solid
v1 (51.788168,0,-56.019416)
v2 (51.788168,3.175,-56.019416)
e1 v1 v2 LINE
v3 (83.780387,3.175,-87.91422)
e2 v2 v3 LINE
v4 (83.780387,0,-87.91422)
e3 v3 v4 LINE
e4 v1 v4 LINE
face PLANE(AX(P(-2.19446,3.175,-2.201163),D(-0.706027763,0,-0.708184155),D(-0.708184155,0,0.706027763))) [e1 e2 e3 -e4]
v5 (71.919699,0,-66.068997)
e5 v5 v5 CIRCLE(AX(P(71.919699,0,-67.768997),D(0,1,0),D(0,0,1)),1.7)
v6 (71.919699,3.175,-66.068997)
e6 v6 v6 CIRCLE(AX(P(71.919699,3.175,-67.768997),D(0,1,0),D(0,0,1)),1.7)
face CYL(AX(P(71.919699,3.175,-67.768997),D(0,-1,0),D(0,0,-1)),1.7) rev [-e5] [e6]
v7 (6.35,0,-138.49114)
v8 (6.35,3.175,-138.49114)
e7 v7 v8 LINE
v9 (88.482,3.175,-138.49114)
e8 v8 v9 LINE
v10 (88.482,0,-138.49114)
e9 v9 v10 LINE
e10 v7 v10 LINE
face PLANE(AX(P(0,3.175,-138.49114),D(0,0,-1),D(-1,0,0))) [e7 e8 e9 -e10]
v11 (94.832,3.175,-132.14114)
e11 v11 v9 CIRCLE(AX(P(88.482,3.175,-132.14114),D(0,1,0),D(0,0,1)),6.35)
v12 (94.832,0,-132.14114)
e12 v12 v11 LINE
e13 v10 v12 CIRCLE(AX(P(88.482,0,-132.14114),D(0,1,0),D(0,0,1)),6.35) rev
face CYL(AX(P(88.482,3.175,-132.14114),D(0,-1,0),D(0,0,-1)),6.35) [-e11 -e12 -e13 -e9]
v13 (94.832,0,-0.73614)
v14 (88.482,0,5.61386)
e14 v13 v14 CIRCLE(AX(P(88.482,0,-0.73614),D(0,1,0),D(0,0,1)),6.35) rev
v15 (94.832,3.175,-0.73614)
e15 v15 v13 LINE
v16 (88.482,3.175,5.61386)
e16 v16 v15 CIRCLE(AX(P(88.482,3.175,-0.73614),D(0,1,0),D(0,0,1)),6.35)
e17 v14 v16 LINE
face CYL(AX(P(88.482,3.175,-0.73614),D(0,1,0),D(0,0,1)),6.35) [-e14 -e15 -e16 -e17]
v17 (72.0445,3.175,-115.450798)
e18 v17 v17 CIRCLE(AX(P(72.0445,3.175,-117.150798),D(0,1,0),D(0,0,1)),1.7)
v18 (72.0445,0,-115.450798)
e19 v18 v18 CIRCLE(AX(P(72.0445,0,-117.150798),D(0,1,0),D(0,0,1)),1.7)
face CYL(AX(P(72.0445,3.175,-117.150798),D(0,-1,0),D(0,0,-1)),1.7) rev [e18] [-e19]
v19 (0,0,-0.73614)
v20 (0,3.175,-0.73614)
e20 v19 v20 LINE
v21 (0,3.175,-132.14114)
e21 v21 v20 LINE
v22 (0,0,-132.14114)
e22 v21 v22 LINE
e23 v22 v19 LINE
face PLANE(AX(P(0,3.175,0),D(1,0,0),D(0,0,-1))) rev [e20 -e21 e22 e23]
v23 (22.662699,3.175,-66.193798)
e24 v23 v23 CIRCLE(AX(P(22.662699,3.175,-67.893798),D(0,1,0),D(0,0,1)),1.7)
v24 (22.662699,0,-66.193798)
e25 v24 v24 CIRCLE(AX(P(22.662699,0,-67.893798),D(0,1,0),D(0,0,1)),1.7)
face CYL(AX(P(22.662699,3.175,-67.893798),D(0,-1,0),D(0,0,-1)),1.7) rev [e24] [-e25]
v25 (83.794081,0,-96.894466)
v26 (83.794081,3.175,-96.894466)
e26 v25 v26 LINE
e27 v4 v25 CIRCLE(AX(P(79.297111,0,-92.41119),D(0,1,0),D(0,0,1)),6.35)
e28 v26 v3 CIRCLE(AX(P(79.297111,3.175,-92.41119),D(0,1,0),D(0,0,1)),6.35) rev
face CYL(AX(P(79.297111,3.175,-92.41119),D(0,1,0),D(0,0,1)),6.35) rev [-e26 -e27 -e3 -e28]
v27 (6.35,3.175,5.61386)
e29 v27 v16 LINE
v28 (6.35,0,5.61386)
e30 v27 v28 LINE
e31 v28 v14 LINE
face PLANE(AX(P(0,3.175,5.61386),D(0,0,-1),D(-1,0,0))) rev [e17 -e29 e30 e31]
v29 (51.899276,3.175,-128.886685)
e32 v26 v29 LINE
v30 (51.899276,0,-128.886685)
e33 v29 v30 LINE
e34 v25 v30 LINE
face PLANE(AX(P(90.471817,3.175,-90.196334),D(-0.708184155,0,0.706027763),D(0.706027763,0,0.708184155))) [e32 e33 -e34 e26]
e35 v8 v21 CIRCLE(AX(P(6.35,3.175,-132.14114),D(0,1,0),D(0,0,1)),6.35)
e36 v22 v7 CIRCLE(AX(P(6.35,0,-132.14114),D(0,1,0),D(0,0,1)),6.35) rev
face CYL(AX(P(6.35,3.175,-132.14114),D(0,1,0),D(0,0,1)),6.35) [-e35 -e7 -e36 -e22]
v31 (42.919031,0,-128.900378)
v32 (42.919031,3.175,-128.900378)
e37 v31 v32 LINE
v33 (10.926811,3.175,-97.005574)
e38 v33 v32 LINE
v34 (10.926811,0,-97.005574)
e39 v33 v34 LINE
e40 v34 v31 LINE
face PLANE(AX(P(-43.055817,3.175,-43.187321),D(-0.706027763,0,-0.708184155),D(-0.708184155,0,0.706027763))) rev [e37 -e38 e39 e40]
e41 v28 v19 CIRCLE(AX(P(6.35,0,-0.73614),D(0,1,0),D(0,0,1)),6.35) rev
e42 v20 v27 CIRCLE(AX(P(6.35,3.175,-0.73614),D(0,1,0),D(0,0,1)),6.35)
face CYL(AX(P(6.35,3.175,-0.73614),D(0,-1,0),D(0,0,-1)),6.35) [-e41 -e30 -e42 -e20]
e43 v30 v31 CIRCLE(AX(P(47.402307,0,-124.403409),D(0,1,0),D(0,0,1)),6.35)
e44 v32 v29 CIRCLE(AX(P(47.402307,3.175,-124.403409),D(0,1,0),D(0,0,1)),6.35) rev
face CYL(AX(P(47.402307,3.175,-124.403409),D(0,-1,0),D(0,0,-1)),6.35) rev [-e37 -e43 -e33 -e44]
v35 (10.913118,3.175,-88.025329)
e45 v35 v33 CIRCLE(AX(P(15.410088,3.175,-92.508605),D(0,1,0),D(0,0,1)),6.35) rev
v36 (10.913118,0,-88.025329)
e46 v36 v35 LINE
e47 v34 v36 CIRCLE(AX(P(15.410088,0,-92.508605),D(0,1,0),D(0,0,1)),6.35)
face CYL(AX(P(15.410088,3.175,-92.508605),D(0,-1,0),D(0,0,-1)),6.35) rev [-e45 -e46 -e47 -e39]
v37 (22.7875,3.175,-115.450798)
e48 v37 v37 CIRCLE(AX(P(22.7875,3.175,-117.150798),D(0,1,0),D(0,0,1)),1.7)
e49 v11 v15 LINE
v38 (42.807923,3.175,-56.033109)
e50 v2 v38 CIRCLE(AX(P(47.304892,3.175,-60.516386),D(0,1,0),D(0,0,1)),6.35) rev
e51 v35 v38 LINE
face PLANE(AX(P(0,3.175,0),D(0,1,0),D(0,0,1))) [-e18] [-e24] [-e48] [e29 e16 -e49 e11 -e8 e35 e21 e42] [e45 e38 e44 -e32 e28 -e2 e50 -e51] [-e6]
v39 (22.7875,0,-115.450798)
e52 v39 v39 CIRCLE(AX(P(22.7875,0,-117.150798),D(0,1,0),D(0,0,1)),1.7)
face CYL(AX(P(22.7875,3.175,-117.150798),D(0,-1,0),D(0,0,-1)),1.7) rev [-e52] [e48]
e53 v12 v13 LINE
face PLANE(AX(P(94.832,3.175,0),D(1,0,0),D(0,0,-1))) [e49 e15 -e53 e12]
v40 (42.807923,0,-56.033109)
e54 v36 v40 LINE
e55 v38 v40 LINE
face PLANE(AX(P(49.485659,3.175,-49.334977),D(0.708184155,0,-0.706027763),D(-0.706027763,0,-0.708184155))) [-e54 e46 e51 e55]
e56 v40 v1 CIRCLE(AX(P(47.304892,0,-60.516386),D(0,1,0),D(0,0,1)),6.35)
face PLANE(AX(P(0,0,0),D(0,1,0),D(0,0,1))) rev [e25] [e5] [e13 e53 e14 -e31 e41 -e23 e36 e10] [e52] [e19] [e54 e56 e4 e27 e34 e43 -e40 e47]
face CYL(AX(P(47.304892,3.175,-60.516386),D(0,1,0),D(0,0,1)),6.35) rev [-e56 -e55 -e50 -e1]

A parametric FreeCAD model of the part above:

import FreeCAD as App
import Part
import Sketcher
Q = App.Units.Quantity


def edges_at(feature, points):
    """Names of the edges that pass closest to the given points."""
    edges = feature.Shape.Edges
    near = lambda p: min(range(len(edges)), key=lambda i: edges[i].distToShape(Part.Vertex(*p))[0])
    return sorted({f"Edge{near(p) + 1}" for p in points})


def add_polygon(sketch, points):
    """Adds a closed chain of lines whose ends are joined by coincident constraints."""
    first, n = sketch.GeometryCount, len(points)
    for a, b in zip(points, points[1:] + points[:1]):
        sketch.addGeometry(Part.LineSegment(App.Vector(*a, 0), App.Vector(*b, 0)), False)
    for i in range(n):
        sketch.addConstraint(Sketcher.Constraint("Coincident", first + i, 2, first + (i + 1) % n, 1))

doc = App.newDocument("Part")
body = doc.addObject("PartDesign::Body", "Body")

sketch1 = body.newObject("Sketcher::SketchObject", "Sketch")
sketch1.AttachmentSupport = (doc.getObject("XZ_Plane"), [""])
sketch1.MapMode = "FlatFace"
add_polygon(sketch1, [(0, -138.49114), (0, 5.61386), (94.832, 5.61386), (94.832, -138.49114)])
sketch1.addGeometry(Part.Circle(App.Vector(22.662699, -67.893798, 0), App.Vector(0, 0, 1), 1.7), False)
sketch1.addGeometry(Part.Circle(App.Vector(71.919699, -67.768997, 0), App.Vector(0, 0, 1), 1.7), False)
sketch1.addGeometry(Part.Circle(App.Vector(22.7875, -117.150798, 0), App.Vector(0, 0, 1), 1.7), False)
add_polygon(sketch1, [(47.291199, -51.53614), (6.429842, -92.522298), (47.416, -133.383655), (88.277357, -92.397497)])
sketch1.addGeometry(Part.Circle(App.Vector(72.0445, -117.150798, 0), App.Vector(0, 0, 1), 1.7), False)
sketch1.addConstraint(Sketcher.Constraint("Vertical", 0))
sketch1.addConstraint(Sketcher.Constraint("Horizontal", 1))
sketch1.addConstraint(Sketcher.Constraint("Vertical", 2))
sketch1.addConstraint(Sketcher.Constraint("Horizontal", 3))
sketch1.addConstraint(Sketcher.Constraint("Equal", 4, 5))
sketch1.addConstraint(Sketcher.Constraint("Equal", 5, 6))
sketch1.addConstraint(Sketcher.Constraint("Equal", 6, 11))
sketch1.addConstraint(Sketcher.Constraint("PointOnObject", 0, 2, -2))
sketch1.addConstraint(Sketcher.Constraint("Perpendicular", 7, 8))
sketch1.addConstraint(Sketcher.Constraint("Perpendicular", 8, 9))
sketch1.addConstraint(Sketcher.Constraint("Perpendicular", 9, 10))
sketch1.addConstraint(Sketcher.Constraint("Horizontal", 6, 3, 11, 3))
sketch1.addConstraint(Sketcher.Constraint("Equal", 7, 8))
sketch1.addConstraint(Sketcher.Constraint("Diameter", 4, 3.4))
sketch1.addConstraint(Sketcher.Constraint("DistanceX", 1, 1, 1, 2, 94.832))
sketch1.addConstraint(Sketcher.Constraint("DistanceY", 0, 1, 0, 2, 144.105))
sketch1.addConstraint(Sketcher.Constraint("Distance", 7, 57.875))
sketch1.addConstraint(Sketcher.Constraint("DistanceX", -1, 1, 4, 3, 22.662699))
sketch1.addConstraint(Sketcher.Constraint("DistanceX", -1, 1, 5, 3, 71.919699))
sketch1.addConstraint(Sketcher.Constraint("DistanceX", -1, 1, 6, 3, 22.7875))
sketch1.addConstraint(Sketcher.Constraint("DistanceX", -1, 1, 11, 3, 72.0445))
sketch1.addConstraint(Sketcher.Constraint("DistanceX", -1, 1, 8, 2, 47.416))
sketch1.addConstraint(Sketcher.Constraint("DistanceX", -1, 1, 10, 2, 47.291199))
sketch1.addConstraint(Sketcher.Constraint("DistanceY", 4, 3, 5, 3, 0.124801))
sketch1.addConstraint(Sketcher.Constraint("DistanceY", 6, 3, 4, 3, 49.257))
sketch1.addConstraint(Sketcher.Constraint("DistanceY", 7, 2, 4, 3, 24.6285))
sketch1.addConstraint(Sketcher.Constraint("DistanceY", -1, 1, 0, 2, 5.61386))
sketch1.addConstraint(Sketcher.Constraint("DistanceY", 10, 2, -1, 1, 51.53614))
pad1 = body.newObject("PartDesign::Pad", "Pad")
pad1.Profile = sketch1
pad1.Length = Q("0.125 in")
pad1.Reversed = True
doc.recompute()

fillet = body.newObject("PartDesign::Fillet", "Fillet")
fillet.Base = (pad1, edges_at(pad1, [
    (47.416, 1.587, -133.384),
    (6.43, 1.587, -92.522),
    (47.291, 1.587, -51.536),
    (88.277, 1.587, -92.397),
]))
fillet.Radius = Q("0.25 in")
doc.recompute()

fillet2 = body.newObject("PartDesign::Fillet", "Fillet001")
fillet2.Base = (fillet, edges_at(fillet, [
    (94.832, 1.587, 5.614),
    (0, 1.587, 5.614),
    (0, 1.587, -138.491),
    (94.832, 1.587, -138.491),
]))
fillet2.Radius = Q("0.25 in")

doc.recompute()
